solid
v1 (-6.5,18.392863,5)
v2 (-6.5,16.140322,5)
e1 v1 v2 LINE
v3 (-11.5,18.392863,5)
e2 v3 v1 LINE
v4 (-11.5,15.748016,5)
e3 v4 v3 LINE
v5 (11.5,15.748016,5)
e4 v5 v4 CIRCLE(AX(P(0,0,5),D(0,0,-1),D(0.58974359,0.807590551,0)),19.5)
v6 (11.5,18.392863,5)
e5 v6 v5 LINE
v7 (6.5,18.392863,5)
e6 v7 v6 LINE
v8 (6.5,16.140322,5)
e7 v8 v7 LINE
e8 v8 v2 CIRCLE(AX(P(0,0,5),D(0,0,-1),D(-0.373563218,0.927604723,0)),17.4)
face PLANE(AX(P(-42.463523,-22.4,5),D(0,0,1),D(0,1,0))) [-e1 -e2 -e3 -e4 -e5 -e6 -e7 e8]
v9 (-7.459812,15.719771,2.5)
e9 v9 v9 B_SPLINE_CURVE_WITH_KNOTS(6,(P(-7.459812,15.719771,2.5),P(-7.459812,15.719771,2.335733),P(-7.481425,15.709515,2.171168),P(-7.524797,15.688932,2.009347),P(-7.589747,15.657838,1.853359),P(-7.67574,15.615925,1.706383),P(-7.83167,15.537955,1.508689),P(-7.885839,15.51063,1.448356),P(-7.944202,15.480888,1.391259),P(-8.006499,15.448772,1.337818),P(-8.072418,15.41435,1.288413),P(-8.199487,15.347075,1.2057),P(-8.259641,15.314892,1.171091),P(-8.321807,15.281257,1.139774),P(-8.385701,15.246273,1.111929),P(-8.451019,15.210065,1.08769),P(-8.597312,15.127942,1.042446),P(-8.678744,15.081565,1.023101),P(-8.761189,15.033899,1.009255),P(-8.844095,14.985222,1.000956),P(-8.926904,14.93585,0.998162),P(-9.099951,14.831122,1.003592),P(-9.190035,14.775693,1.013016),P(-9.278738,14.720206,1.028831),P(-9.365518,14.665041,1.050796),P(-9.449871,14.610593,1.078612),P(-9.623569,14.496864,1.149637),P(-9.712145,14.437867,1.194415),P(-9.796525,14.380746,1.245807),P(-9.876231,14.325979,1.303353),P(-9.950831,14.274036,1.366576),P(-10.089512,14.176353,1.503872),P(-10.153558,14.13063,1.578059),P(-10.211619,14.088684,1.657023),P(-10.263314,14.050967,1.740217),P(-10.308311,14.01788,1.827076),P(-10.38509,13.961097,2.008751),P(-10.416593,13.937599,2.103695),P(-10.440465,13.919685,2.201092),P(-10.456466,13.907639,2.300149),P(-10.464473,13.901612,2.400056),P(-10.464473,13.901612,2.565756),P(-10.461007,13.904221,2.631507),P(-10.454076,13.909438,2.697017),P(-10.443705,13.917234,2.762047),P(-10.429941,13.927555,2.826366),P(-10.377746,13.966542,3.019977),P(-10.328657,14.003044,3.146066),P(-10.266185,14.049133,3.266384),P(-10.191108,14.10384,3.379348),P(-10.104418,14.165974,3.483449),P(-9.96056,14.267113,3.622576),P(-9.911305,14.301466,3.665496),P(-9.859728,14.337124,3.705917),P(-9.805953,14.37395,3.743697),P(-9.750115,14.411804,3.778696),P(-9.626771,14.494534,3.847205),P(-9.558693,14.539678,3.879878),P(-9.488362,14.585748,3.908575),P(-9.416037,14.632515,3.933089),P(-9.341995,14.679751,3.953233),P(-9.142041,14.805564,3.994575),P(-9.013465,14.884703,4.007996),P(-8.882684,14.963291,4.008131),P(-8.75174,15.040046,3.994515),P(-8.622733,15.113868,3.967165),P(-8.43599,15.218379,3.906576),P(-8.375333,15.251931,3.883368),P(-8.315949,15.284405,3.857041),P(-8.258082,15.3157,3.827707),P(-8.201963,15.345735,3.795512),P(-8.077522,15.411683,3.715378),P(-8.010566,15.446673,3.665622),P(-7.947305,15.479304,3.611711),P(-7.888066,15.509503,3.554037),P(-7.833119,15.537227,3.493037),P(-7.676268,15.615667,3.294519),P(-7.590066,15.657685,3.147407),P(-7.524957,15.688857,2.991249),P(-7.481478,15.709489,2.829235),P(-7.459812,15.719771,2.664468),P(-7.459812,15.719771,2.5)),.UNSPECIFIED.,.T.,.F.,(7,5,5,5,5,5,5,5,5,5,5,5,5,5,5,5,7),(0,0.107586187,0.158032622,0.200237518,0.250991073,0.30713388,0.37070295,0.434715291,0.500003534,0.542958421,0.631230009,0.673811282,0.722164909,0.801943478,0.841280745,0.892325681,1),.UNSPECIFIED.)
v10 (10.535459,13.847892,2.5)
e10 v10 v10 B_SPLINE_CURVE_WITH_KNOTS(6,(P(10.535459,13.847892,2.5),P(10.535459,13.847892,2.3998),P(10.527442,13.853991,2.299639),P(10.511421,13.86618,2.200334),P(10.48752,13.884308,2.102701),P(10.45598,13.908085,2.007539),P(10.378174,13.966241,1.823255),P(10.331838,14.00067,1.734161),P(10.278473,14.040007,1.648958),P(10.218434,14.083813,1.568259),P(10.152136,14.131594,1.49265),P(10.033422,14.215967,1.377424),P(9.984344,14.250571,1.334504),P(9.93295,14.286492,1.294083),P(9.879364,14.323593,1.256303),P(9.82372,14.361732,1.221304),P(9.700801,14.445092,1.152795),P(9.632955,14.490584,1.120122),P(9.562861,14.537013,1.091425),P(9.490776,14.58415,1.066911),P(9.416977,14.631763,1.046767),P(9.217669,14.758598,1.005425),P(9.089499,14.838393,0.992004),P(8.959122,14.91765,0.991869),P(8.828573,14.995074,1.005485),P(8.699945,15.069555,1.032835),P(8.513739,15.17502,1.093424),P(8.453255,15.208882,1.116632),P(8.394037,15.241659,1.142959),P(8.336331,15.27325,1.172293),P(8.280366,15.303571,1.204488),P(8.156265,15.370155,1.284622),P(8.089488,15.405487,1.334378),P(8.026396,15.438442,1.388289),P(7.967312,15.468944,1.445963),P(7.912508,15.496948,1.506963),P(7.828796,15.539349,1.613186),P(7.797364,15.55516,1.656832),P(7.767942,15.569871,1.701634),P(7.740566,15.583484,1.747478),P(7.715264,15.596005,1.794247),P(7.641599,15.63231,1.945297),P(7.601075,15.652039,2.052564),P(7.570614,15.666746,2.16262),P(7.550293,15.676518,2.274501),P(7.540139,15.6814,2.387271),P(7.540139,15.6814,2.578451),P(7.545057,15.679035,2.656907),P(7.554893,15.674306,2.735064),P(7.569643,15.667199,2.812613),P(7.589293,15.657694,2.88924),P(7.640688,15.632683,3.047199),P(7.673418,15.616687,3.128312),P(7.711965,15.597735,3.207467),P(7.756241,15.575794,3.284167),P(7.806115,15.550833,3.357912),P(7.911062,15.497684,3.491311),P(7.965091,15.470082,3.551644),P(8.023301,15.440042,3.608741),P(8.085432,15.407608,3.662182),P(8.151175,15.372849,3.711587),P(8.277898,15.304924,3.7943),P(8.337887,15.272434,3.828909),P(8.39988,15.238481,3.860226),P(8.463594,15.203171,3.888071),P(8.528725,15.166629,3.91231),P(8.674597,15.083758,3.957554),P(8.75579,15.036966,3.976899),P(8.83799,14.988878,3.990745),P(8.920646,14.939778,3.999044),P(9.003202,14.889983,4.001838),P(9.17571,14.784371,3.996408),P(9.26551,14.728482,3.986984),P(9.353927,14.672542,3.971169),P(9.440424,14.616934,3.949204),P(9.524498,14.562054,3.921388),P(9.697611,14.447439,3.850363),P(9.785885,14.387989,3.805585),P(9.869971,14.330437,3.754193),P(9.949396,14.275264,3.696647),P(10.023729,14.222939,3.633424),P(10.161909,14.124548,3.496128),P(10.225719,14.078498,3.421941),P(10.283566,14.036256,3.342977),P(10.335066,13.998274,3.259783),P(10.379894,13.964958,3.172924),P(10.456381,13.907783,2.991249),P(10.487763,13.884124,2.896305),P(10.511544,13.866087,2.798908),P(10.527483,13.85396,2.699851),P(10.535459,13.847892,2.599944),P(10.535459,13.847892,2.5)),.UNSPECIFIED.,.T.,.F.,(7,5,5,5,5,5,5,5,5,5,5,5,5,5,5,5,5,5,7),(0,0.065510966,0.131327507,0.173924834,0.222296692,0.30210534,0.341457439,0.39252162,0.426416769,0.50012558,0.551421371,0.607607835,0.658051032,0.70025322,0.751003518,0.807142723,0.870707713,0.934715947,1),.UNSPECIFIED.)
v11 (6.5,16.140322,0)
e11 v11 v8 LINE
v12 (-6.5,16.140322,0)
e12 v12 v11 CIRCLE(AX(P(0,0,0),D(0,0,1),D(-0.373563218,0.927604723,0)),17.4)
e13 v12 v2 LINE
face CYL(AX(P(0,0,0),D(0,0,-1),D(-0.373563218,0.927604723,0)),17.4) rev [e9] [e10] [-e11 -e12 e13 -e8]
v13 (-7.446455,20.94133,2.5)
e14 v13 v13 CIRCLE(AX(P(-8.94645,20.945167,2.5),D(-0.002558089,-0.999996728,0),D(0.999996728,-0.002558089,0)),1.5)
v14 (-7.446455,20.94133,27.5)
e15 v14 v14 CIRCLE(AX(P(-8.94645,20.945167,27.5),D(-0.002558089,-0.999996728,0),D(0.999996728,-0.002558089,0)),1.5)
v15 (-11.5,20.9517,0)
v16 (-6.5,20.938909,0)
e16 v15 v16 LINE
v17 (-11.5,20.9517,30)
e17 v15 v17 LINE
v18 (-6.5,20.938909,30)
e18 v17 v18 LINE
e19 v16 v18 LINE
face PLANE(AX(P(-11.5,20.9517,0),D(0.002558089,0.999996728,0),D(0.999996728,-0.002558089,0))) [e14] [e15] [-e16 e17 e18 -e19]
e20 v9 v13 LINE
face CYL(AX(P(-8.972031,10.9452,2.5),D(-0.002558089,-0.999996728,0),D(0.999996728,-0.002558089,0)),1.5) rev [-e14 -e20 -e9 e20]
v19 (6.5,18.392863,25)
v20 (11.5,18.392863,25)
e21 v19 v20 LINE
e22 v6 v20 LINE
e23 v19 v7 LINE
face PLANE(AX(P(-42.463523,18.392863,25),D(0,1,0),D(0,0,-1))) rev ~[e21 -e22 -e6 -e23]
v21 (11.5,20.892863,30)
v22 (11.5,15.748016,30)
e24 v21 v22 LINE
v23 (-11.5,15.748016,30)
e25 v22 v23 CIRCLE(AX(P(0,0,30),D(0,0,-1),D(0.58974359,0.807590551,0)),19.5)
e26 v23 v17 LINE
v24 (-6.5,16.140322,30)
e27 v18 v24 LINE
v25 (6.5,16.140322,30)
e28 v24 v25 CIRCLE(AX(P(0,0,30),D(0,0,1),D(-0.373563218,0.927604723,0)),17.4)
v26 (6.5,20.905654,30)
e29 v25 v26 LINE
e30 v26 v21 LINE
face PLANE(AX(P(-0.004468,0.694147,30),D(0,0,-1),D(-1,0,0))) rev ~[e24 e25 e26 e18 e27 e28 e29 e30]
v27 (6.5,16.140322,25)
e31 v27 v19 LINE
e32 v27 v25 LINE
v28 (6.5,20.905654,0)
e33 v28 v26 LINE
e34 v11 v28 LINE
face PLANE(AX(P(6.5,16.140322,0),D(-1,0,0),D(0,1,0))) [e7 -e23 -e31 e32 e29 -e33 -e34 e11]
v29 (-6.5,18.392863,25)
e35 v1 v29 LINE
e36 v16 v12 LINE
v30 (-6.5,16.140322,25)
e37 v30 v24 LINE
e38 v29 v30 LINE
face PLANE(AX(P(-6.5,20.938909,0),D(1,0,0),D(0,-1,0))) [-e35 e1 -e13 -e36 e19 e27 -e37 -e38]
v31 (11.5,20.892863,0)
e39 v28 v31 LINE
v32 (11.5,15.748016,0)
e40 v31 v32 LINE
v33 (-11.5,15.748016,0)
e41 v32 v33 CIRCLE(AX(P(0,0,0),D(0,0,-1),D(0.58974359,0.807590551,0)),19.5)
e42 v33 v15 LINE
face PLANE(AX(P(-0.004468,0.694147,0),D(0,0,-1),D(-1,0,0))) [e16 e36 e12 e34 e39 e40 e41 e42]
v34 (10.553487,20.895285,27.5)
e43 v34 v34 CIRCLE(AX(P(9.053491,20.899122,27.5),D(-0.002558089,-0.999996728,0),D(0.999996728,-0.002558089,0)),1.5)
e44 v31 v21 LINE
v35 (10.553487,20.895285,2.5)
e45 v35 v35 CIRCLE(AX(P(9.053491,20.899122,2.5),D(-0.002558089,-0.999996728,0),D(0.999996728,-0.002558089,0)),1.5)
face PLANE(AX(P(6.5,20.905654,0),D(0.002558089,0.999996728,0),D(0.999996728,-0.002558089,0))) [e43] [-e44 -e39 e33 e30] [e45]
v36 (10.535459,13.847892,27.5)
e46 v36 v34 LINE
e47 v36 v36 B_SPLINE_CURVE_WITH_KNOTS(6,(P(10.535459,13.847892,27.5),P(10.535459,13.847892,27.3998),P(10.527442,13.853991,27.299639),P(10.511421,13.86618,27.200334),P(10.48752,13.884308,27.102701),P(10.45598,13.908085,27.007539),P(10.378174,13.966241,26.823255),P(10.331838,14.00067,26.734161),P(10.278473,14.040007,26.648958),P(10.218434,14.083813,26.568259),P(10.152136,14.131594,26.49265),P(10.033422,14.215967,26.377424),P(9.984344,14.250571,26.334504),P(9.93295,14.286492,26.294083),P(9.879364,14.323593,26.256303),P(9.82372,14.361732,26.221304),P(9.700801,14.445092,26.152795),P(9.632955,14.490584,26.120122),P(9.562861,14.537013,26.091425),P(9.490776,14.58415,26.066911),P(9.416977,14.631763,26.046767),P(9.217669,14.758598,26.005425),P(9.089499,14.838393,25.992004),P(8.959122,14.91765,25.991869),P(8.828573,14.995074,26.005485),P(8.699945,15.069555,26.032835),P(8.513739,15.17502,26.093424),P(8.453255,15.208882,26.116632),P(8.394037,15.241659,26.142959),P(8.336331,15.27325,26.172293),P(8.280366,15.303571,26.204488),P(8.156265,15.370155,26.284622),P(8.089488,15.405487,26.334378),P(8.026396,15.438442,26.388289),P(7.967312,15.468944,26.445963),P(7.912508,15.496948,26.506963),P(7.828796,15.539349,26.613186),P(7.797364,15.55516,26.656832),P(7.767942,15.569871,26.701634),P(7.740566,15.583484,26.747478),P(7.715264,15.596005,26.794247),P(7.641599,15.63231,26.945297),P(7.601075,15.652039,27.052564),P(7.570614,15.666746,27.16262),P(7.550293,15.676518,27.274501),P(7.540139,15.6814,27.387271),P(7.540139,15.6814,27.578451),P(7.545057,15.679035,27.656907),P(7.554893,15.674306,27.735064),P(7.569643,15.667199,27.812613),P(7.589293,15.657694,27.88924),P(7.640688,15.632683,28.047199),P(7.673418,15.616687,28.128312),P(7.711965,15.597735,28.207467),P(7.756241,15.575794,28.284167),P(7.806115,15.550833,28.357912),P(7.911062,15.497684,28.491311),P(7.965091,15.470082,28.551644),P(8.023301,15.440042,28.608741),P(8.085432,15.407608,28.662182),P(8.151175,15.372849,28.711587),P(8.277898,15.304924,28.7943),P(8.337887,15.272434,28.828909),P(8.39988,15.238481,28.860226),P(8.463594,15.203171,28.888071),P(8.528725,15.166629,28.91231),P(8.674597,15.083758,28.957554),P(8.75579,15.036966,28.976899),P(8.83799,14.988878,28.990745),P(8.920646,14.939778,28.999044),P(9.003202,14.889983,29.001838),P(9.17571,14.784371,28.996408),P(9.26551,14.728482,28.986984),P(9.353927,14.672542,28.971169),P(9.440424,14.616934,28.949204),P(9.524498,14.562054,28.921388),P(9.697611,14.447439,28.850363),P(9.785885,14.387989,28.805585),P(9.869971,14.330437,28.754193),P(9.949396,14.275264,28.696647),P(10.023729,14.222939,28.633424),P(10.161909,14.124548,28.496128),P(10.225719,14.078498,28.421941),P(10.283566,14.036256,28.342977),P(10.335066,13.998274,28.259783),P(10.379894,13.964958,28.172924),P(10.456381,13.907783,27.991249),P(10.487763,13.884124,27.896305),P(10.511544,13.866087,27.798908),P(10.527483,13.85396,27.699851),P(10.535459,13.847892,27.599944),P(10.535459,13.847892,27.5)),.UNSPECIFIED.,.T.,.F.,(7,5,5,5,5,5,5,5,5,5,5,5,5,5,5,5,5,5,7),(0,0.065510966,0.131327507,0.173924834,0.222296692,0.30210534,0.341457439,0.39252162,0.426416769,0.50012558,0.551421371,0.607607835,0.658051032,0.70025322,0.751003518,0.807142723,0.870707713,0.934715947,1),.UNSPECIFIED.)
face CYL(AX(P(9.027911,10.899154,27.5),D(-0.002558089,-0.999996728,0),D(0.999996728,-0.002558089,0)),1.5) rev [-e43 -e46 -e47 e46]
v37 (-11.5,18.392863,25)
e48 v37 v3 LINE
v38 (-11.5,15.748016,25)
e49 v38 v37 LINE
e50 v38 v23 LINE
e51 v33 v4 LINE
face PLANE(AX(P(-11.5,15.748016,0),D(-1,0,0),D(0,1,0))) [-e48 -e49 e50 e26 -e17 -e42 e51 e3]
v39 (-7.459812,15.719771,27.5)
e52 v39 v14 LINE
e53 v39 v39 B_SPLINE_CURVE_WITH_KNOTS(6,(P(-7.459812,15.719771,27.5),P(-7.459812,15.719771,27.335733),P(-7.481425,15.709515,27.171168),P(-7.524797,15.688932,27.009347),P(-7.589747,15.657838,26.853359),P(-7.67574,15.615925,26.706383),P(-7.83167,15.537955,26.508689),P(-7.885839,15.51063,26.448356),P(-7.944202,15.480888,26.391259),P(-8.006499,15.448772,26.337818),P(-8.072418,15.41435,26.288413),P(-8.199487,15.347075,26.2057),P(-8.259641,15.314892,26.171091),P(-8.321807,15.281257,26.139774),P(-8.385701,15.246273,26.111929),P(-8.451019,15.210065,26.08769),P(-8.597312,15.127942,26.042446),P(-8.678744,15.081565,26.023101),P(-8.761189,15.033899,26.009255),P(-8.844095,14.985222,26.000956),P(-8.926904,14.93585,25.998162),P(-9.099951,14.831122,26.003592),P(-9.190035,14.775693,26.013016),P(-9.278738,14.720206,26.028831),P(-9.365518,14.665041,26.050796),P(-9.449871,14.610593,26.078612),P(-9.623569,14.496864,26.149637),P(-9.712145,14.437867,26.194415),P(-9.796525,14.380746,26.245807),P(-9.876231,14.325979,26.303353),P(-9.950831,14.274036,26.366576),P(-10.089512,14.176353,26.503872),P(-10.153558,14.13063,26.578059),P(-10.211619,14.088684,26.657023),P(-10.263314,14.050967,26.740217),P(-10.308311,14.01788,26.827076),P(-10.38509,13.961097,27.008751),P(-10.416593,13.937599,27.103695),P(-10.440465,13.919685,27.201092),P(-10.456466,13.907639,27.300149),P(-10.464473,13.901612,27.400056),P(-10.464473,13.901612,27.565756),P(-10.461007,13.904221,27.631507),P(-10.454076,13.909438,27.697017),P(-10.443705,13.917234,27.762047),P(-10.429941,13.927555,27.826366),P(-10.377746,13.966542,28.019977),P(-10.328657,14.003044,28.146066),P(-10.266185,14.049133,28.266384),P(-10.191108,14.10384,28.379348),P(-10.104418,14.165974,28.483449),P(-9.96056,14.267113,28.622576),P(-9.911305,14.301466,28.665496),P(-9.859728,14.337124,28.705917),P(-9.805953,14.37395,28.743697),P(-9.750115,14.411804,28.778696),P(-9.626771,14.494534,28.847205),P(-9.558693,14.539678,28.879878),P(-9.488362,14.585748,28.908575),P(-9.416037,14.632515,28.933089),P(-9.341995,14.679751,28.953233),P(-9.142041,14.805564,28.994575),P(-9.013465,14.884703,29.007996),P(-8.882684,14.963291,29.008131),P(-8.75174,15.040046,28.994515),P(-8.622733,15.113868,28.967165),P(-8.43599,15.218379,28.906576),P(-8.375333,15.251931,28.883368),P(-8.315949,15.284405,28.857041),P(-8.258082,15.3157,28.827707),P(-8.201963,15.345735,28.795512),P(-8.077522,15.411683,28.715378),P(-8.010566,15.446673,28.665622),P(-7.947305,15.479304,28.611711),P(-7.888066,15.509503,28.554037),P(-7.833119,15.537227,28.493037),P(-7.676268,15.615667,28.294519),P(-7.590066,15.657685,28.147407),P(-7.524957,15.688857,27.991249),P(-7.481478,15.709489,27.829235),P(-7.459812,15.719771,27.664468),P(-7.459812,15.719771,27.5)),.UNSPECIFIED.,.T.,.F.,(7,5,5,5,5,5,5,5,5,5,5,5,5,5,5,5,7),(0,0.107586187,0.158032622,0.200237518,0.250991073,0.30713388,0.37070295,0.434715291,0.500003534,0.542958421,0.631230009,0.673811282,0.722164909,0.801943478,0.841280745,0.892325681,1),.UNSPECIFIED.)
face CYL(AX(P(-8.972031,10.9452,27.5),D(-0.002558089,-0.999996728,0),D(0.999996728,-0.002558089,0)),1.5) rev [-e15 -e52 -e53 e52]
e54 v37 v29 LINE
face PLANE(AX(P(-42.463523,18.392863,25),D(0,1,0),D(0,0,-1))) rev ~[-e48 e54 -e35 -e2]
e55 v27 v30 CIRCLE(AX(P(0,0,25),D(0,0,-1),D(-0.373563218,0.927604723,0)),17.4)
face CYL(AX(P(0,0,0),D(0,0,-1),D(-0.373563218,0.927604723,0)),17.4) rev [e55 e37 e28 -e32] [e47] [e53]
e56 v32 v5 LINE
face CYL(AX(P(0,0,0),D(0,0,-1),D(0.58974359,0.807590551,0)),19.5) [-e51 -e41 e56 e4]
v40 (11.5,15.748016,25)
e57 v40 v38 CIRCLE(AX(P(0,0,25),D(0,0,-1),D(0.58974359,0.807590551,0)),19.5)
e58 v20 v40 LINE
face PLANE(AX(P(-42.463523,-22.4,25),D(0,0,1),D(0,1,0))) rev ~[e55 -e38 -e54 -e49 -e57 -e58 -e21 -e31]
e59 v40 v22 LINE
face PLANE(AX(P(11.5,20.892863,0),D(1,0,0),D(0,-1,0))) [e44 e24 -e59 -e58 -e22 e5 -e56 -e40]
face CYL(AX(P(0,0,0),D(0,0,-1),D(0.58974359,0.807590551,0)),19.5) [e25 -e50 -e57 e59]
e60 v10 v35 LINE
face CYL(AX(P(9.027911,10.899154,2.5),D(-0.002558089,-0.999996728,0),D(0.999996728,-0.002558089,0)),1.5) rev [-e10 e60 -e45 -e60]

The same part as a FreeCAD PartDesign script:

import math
import FreeCAD as App
import Part
import Sketcher
Q = App.Units.Quantity

doc = App.newDocument("Part")
body = doc.addObject("PartDesign::Body", "Body")

# Sketch on XY plane
sketch1 = body.newObject("Sketcher::SketchObject", "Sketch")
sketch1.AttachmentSupport = (doc.getObject("XY_Plane"), [""])
sketch1.MapMode = "FlatFace"
sketch1.addGeometry(Part.LineSegment(App.Vector(-6.5, 16.1, 0), App.Vector(-6.5, 20.9, 0)), False)
sketch1.addGeometry(Part.LineSegment(App.Vector(-6.5, 20.9, 0), App.Vector(-11.5, 21, 0)), False)
sketch1.addGeometry(Part.LineSegment(App.Vector(-11.5, 21, 0), App.Vector(-11.5, 15.7, 0)), False)
sketch1.addGeometry(Part.ArcOfCircle(Part.Circle(App.Vector(0, 0, 0), App.Vector(0, 0, 1), 19.5), math.radians(126), math.radians(414)), False)
sketch1.addGeometry(Part.LineSegment(App.Vector(11.5, 15.7, 0), App.Vector(11.5, 20.9, 0)), False)
sketch1.addGeometry(Part.LineSegment(App.Vector(11.5, 20.9, 0), App.Vector(6.5, 20.9, 0)), False)
sketch1.addGeometry(Part.LineSegment(App.Vector(6.5, 20.9, 0), App.Vector(6.5, 16.1, 0)), False)
sketch1.addGeometry(Part.ArcOfCircle(Part.Circle(App.Vector(0, 0, 0), App.Vector(0, 0, 1), 17.4), math.radians(112), math.radians(428)), False)
sketch1.addConstraint(Sketcher.Constraint("Coincident", 0, 2, 1, 1))
sketch1.addConstraint(Sketcher.Constraint("Coincident", 1, 2, 2, 1))
sketch1.addConstraint(Sketcher.Constraint("Coincident", 2, 2, 3, 1))
sketch1.addConstraint(Sketcher.Constraint("Coincident", 3, 2, 4, 1))
sketch1.addConstraint(Sketcher.Constraint("Coincident", 4, 2, 5, 1))
sketch1.addConstraint(Sketcher.Constraint("Coincident", 5, 2, 6, 1))
sketch1.addConstraint(Sketcher.Constraint("Coincident", 6, 2, 7, 2))
sketch1.addConstraint(Sketcher.Constraint("Coincident", 7, 1, 0, 1))
sketch1.addConstraint(Sketcher.Constraint("Vertical", 0))
sketch1.addConstraint(Sketcher.Constraint("Vertical", 2))
sketch1.addConstraint(Sketcher.Constraint("Vertical", 4))
sketch1.addConstraint(Sketcher.Constraint("Vertical", 6))
sketch1.addConstraint(Sketcher.Constraint("Coincident", 3, 3, -1, 1))
sketch1.addConstraint(Sketcher.Constraint("Coincident", 7, 3, -1, 1))
sketch1.addConstraint(Sketcher.Constraint("Parallel", 1, 5))
sketch1.addConstraint(Sketcher.Constraint("Horizontal", 2, 2, 3, 2))
sketch1.addConstraint(Sketcher.Constraint("Horizontal", 6, 2, 7, 1))
sketch1.addConstraint(Sketcher.Constraint("Radius", 3, Q("19.5 mm")))
sketch1.addConstraint(Sketcher.Constraint("Radius", 7, Q("17.4 mm")))
sketch1.addConstraint(Sketcher.Constraint("DistanceX", 1, 2, 0, 2, Q("5 mm")))
sketch1.addConstraint(Sketcher.Constraint("DistanceX", 0, 2, 3, 2, Q("18 mm")))
sketch1.addConstraint(Sketcher.Constraint("DistanceY", 6, 2, 6, 1, Q("4.765332 mm")))
sketch1.addConstraint(Sketcher.Constraint("DistanceY", -1, 1, 1, 2, Q("20.9517 mm")))
sketch1.addConstraint(Sketcher.Constraint("DistanceY", 0, 1, 0, 2, Q("4.798587 mm")))
pad1 = body.newObject("PartDesign::Pad", "Pad")
pad1.Profile = sketch1
pad1.Length = 30

# Sketch on YZ plane
sketch2 = body.newObject("Sketcher::SketchObject", "Sketch001")
sketch2.AttachmentSupport = (doc.getObject("YZ_Plane"), [""])
sketch2.MapMode = "FlatFace"
sketch2.addGeometry(Part.LineSegment(App.Vector(18, 25, 0), App.Vector(-22, 25, 0)), False)
sketch2.addGeometry(Part.LineSegment(App.Vector(-22, 25, 0), App.Vector(-22, 5, 0)), False)
sketch2.addGeometry(Part.LineSegment(App.Vector(-22, 5, 0), App.Vector(18, 5, 0)), False)
sketch2.addGeometry(Part.LineSegment(App.Vector(18, 5, 0), App.Vector(18, 25, 0)), False)
sketch2.addConstraint(Sketcher.Constraint("Coincident", 0, 2, 1, 1))
sketch2.addConstraint(Sketcher.Constraint("Coincident", 1, 2, 2, 1))
sketch2.addConstraint(Sketcher.Constraint("Coincident", 2, 2, 3, 1))
sketch2.addConstraint(Sketcher.Constraint("Coincident", 3, 2, 0, 1))
sketch2.addConstraint(Sketcher.Constraint("Horizontal", 0))
sketch2.addConstraint(Sketcher.Constraint("Vertical", 1))
sketch2.addConstraint(Sketcher.Constraint("Horizontal", 2))
sketch2.addConstraint(Sketcher.Constraint("Vertical", 3))
sketch2.addConstraint(Sketcher.Constraint("DistanceY", 1, 2, 1, 1, Q("20 mm")))
sketch2.addConstraint(Sketcher.Constraint("DistanceY", -1, 1, 0, 2, Q("25 mm")))
sketch2.addConstraint(Sketcher.Constraint("DistanceX", 0, 2, -1, 1, Q("22.4 mm")))
sketch2.addConstraint(Sketcher.Constraint("DistanceX", 0, 2, 0, 1, Q("40.792863 mm")))
pocket1 = body.newObject("PartDesign::Pocket", "Pocket")
pocket1.Profile = sketch2
pocket1.Type = "ThroughAll"
pocket1.Midplane = True

# Sketch on an angled plane
sketch3 = body.newObject("Sketcher::SketchObject", "Sketch002")
sketch3.Placement = App.Placement(App.Vector(0.053521, 20.922144, 0), App.Rotation(App.Vector(0.999996728, -0.002558089, 0), App.Vector(0, 0, -1), App.Vector(0.002558089, 0.999996728, 0), "ZXY"))
sketch3.addGeometry(Part.Circle(App.Vector(9, -2.5, 0), App.Vector(0, 0, 1), 1.5), False)
sketch3.addGeometry(Part.Circle(App.Vector(-9, -2.5, 0), App.Vector(0, 0, 1), 1.5), False)
sketch3.addGeometry(Part.Circle(App.Vector(-9, -27.5, 0), App.Vector(0, 0, 1), 1.5), False)
sketch3.addGeometry(Part.Circle(App.Vector(9, -27.5, 0), App.Vector(0, 0, 1), 1.5), False)
sketch3.addConstraint(Sketcher.Constraint("Equal", 0, 1))
sketch3.addConstraint(Sketcher.Constraint("Equal", 1, 2))
sketch3.addConstraint(Sketcher.Constraint("Equal", 2, 3))
sketch3.addConstraint(Sketcher.Constraint("Symmetric", 0, 3, 1, 3, -2))
sketch3.addConstraint(Sketcher.Constraint("Symmetric", 2, 3, 3, 3, -2))
sketch3.addConstraint(Sketcher.Constraint("Vertical", 1, 3, 2, 3))
sketch3.addConstraint(Sketcher.Constraint("Diameter", 0, Q("3 mm")))
sketch3.addConstraint(Sketcher.Constraint("DistanceX", -1, 1, 0, 3, Q("9 mm")))
sketch3.addConstraint(Sketcher.Constraint("DistanceY", 2, 3, 1, 3, Q("25 mm")))
sketch3.addConstraint(Sketcher.Constraint("DistanceY", 0, 3, -1, 1, Q("2.5 mm")))
pocket2 = body.newObject("PartDesign::Pocket", "Pocket001")
pocket2.Profile = sketch3
pocket2.Type = "TwoLengths"
pocket2.Length = 55.002685
pocket2.Length2 = 10
pocket2.Reversed = True

doc.recompute()
